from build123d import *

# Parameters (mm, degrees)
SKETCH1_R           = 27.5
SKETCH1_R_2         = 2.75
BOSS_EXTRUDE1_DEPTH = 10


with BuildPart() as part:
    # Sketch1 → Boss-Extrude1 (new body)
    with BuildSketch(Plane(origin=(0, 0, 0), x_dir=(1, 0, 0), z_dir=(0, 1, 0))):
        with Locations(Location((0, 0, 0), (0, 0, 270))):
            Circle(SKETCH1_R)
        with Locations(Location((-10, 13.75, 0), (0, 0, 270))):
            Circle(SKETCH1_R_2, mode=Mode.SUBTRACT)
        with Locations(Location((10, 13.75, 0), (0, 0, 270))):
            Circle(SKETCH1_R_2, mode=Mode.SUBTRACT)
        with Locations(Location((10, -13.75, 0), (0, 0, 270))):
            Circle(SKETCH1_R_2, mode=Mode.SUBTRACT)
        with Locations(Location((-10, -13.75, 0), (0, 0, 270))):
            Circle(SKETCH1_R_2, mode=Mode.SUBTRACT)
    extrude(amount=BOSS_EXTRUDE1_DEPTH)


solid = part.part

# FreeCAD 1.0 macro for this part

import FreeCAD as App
import Part
import Sketcher

V = App.Vector

doc = App.newDocument("Part")
body = doc.addObject("PartDesign::Body", "Body")

# Sketch on XZ plane
sketch1 = body.newObject("Sketcher::SketchObject", "Sketch")
sketch1.AttachmentSupport = (doc.getObject("XZ_Plane"), [""])
sketch1.MapMode = "FlatFace"
sketch1.addGeometry([
    Part.Circle(V(0, 0, 0), V(0, 0, 1), 27.5),  # 0
    Part.Circle(V(-10, -13.75, 0), V(0, 0, 1), 2.75),  # 1
    Part.Circle(V(-10, 13.75, 0), V(0, 0, 1), 2.75),  # 2
    Part.Circle(V(10, -13.75, 0), V(0, 0, 1), 2.75),  # 3
    Part.Circle(V(10, 13.75, 0), V(0, 0, 1), 2.75),  # 4
], False)
sketch1.addConstraint([
    Sketcher.Constraint("Coincident", 0, 3, -1, 1),
    Sketcher.Constraint("Equal", 1, 2),
    Sketcher.Constraint("Equal", 2, 3),
    Sketcher.Constraint("Equal", 3, 4),
    Sketcher.Constraint("Symmetric", 2, 3, 3, 3, -1, 1),
    Sketcher.Constraint("Symmetric", 1, 3, 4, 3, -1, 1),
    Sketcher.Constraint("Symmetric", 1, 3, 3, 3, -2),
    Sketcher.Constraint("Diameter", 0, 55.0),
    Sketcher.Constraint("Diameter", 1, 5.5),
    Sketcher.Constraint("DistanceX", 1, 3, -1, 1, 10.0),
    Sketcher.Constraint("DistanceY", 1, 3, 2, 3, 27.5),
])
pad1 = body.newObject("PartDesign::Pad", "Pad")
pad1.Profile = sketch1
pad1.Length = 10
pad1.Reversed = True

doc.recompute()
